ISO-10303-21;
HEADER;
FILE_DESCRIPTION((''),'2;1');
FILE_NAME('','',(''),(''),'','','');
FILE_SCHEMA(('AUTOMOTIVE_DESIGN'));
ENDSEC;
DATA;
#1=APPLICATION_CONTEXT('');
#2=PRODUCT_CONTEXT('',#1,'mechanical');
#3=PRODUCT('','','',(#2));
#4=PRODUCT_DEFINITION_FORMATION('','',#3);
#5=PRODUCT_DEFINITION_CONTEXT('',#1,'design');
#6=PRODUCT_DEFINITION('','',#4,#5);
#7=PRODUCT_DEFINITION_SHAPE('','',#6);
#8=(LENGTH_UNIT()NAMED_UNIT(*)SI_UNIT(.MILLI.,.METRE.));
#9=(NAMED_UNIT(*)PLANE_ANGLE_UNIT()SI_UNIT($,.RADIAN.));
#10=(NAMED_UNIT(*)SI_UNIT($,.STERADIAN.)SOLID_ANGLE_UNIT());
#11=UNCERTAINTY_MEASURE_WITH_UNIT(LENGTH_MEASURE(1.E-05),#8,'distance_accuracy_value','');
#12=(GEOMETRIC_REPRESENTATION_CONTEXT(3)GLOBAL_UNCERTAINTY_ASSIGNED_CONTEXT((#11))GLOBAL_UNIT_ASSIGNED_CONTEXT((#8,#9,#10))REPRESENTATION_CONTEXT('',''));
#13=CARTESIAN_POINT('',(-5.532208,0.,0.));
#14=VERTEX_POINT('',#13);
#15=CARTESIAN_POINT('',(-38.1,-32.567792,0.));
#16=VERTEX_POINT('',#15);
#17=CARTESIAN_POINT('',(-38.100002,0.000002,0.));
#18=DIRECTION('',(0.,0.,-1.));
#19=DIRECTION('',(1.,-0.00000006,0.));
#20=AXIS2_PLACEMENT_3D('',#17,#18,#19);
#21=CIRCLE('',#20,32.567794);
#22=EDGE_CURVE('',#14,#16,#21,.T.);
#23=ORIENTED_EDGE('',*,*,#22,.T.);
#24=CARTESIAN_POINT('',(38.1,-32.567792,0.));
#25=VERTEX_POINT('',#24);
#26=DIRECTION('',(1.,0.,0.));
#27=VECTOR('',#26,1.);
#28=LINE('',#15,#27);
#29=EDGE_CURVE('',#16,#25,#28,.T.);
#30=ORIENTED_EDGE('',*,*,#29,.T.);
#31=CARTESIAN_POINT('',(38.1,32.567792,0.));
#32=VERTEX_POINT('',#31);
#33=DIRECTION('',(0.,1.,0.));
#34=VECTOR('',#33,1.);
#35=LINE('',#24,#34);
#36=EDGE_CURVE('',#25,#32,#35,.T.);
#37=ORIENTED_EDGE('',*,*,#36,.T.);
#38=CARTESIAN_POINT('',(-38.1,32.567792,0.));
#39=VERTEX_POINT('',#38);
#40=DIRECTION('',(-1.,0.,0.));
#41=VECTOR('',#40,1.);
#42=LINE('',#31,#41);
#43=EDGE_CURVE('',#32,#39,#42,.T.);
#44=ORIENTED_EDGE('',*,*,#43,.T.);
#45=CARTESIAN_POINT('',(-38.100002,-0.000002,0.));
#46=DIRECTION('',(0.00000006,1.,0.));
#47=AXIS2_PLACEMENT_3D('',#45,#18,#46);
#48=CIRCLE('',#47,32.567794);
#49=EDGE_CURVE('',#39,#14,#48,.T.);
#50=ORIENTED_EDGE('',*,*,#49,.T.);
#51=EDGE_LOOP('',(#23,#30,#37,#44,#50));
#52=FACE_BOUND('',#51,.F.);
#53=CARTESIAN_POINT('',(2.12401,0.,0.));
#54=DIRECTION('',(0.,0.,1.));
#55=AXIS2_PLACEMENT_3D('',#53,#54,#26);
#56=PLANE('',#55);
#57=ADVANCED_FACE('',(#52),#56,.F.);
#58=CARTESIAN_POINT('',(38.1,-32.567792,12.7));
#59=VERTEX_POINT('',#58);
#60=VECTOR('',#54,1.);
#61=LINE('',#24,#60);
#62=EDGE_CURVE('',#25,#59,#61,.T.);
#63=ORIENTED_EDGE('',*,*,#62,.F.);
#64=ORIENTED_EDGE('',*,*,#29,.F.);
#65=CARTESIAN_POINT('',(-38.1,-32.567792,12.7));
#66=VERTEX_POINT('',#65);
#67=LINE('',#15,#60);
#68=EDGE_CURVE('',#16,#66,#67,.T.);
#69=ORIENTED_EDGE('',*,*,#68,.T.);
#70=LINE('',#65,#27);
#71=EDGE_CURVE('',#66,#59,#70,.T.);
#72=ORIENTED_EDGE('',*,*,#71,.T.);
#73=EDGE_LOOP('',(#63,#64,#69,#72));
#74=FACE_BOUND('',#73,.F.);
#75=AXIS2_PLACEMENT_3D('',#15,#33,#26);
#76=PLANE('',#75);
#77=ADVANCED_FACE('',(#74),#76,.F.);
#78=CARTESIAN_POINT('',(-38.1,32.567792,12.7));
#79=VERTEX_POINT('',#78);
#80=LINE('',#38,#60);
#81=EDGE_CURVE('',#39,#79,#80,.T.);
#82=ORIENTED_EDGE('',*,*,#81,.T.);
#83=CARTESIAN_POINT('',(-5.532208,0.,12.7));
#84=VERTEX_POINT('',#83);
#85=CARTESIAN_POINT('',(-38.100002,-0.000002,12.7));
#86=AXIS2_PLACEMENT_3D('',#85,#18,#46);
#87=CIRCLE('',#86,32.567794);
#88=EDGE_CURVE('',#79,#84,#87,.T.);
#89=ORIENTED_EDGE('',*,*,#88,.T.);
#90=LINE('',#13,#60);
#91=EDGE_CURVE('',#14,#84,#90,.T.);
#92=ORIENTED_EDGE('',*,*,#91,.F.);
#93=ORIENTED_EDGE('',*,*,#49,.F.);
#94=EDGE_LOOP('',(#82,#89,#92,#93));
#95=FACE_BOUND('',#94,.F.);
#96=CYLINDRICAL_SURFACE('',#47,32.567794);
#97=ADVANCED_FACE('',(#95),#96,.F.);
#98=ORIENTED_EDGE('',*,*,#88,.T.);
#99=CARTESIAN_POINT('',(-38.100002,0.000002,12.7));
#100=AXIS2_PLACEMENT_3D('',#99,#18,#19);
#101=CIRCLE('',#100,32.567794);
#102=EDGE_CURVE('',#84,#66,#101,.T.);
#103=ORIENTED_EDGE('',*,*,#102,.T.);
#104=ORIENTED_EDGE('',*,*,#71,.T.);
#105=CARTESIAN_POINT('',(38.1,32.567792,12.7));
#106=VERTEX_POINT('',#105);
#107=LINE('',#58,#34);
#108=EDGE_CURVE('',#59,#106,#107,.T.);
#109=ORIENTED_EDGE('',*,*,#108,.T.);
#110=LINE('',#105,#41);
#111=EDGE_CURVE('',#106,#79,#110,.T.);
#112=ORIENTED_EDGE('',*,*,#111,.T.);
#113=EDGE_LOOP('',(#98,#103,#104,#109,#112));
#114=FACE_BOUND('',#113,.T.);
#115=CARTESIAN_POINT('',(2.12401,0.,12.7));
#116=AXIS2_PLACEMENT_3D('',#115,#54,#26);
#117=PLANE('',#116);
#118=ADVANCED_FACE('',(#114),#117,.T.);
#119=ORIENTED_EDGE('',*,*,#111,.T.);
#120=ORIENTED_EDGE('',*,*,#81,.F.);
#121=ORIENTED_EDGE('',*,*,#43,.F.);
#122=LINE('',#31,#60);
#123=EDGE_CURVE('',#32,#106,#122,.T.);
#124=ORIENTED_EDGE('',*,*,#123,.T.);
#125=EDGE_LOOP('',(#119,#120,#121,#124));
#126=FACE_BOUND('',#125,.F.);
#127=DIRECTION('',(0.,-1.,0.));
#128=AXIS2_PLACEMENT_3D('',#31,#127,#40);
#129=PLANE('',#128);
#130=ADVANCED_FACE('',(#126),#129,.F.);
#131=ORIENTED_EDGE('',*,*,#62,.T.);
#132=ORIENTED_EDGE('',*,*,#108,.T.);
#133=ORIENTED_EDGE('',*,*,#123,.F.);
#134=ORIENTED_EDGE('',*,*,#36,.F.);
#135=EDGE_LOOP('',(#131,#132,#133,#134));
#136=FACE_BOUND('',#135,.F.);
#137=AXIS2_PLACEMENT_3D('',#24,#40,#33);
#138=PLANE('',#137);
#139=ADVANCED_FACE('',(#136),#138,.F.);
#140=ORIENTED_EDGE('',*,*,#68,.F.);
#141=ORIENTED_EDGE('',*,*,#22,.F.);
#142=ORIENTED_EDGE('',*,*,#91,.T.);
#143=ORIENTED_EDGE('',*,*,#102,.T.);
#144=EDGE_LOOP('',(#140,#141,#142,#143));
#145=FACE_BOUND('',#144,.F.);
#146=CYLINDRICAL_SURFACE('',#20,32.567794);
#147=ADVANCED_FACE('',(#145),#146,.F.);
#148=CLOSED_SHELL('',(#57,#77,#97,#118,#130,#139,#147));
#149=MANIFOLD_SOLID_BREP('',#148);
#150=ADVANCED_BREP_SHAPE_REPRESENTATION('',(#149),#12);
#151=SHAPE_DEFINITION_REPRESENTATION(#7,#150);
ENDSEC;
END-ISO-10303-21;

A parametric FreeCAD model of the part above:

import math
import FreeCAD as App
import Part
import Sketcher
Q = App.Units.Quantity

doc = App.newDocument("Part")
params = doc.addObject("Spreadsheet::Sheet", "Params")
for row, (alias, value) in enumerate([
    ("sketch1_width", "3 in"),
    ("pad1_length", "0.5 in"),
], start=1):
    params.set(f"A{row}", alias)
    params.set(f"B{row}", "=" + value)
    params.setAlias(f"B{row}", alias)

body = doc.addObject("PartDesign::Body", "Body")

# Sketch on XY plane
sketch1 = doc.addObject("Sketcher::SketchObject", "Sketch")
body.addObject(sketch1)
sketch1.AttachmentSupport = (doc.XY_Plane, [""])
sketch1.MapMode = "FlatFace"
sketch1.addGeometry([
    Part.ArcOfCircle(Part.Circle(App.Vector(-38, 0, 0), App.Vector(0, 0, 1), 33), math.radians(-90), math.radians(0)),  # 0
    Part.LineSegment(App.Vector(-38, -33, 0), App.Vector(38, -33, 0)),  # 1
    Part.LineSegment(App.Vector(38, -33, 0), App.Vector(38, 33, 0)),  # 2
    Part.LineSegment(App.Vector(38, 33, 0), App.Vector(-38, 33, 0)),  # 3
    Part.ArcOfCircle(Part.Circle(App.Vector(-38, 0, 0), App.Vector(0, 0, 1), 33), math.radians(0), math.radians(90)),  # 4
], False)
sketch1.addConstraint([
    Sketcher.Constraint("Tangent", 0, 1, 1, 1),
    Sketcher.Constraint("Coincident", 1, 2, 2, 1),
    Sketcher.Constraint("Coincident", 2, 2, 3, 1),
    Sketcher.Constraint("Tangent", 3, 2, 4, 2),
    Sketcher.Constraint("Tangent", 4, 1, 0, 2),
    Sketcher.Constraint("Horizontal", 1),
    Sketcher.Constraint("Vertical", 2),
    Sketcher.Constraint("Horizontal", 3),
    Sketcher.Constraint("Equal", 0, 4),
    Sketcher.Constraint("Symmetric", 0, 1, 2, 2, -1, 1),
    Sketcher.Constraint("PointOnObject", 4, 1, -1),
    Sketcher.Constraint("DistanceX", 1, 1, 1, 2, Q("3 in")),
    Sketcher.Constraint("Radius", 0, 32.567794),
])
sketch1.setExpression("Constraints[11]", "Params.sketch1_width")
pad1 = doc.addObject("PartDesign::Pad", "Pad")
body.addObject(pad1)
pad1.Profile = sketch1
pad1.setExpression("Length", "Params.pad1_length")

doc.recompute()
